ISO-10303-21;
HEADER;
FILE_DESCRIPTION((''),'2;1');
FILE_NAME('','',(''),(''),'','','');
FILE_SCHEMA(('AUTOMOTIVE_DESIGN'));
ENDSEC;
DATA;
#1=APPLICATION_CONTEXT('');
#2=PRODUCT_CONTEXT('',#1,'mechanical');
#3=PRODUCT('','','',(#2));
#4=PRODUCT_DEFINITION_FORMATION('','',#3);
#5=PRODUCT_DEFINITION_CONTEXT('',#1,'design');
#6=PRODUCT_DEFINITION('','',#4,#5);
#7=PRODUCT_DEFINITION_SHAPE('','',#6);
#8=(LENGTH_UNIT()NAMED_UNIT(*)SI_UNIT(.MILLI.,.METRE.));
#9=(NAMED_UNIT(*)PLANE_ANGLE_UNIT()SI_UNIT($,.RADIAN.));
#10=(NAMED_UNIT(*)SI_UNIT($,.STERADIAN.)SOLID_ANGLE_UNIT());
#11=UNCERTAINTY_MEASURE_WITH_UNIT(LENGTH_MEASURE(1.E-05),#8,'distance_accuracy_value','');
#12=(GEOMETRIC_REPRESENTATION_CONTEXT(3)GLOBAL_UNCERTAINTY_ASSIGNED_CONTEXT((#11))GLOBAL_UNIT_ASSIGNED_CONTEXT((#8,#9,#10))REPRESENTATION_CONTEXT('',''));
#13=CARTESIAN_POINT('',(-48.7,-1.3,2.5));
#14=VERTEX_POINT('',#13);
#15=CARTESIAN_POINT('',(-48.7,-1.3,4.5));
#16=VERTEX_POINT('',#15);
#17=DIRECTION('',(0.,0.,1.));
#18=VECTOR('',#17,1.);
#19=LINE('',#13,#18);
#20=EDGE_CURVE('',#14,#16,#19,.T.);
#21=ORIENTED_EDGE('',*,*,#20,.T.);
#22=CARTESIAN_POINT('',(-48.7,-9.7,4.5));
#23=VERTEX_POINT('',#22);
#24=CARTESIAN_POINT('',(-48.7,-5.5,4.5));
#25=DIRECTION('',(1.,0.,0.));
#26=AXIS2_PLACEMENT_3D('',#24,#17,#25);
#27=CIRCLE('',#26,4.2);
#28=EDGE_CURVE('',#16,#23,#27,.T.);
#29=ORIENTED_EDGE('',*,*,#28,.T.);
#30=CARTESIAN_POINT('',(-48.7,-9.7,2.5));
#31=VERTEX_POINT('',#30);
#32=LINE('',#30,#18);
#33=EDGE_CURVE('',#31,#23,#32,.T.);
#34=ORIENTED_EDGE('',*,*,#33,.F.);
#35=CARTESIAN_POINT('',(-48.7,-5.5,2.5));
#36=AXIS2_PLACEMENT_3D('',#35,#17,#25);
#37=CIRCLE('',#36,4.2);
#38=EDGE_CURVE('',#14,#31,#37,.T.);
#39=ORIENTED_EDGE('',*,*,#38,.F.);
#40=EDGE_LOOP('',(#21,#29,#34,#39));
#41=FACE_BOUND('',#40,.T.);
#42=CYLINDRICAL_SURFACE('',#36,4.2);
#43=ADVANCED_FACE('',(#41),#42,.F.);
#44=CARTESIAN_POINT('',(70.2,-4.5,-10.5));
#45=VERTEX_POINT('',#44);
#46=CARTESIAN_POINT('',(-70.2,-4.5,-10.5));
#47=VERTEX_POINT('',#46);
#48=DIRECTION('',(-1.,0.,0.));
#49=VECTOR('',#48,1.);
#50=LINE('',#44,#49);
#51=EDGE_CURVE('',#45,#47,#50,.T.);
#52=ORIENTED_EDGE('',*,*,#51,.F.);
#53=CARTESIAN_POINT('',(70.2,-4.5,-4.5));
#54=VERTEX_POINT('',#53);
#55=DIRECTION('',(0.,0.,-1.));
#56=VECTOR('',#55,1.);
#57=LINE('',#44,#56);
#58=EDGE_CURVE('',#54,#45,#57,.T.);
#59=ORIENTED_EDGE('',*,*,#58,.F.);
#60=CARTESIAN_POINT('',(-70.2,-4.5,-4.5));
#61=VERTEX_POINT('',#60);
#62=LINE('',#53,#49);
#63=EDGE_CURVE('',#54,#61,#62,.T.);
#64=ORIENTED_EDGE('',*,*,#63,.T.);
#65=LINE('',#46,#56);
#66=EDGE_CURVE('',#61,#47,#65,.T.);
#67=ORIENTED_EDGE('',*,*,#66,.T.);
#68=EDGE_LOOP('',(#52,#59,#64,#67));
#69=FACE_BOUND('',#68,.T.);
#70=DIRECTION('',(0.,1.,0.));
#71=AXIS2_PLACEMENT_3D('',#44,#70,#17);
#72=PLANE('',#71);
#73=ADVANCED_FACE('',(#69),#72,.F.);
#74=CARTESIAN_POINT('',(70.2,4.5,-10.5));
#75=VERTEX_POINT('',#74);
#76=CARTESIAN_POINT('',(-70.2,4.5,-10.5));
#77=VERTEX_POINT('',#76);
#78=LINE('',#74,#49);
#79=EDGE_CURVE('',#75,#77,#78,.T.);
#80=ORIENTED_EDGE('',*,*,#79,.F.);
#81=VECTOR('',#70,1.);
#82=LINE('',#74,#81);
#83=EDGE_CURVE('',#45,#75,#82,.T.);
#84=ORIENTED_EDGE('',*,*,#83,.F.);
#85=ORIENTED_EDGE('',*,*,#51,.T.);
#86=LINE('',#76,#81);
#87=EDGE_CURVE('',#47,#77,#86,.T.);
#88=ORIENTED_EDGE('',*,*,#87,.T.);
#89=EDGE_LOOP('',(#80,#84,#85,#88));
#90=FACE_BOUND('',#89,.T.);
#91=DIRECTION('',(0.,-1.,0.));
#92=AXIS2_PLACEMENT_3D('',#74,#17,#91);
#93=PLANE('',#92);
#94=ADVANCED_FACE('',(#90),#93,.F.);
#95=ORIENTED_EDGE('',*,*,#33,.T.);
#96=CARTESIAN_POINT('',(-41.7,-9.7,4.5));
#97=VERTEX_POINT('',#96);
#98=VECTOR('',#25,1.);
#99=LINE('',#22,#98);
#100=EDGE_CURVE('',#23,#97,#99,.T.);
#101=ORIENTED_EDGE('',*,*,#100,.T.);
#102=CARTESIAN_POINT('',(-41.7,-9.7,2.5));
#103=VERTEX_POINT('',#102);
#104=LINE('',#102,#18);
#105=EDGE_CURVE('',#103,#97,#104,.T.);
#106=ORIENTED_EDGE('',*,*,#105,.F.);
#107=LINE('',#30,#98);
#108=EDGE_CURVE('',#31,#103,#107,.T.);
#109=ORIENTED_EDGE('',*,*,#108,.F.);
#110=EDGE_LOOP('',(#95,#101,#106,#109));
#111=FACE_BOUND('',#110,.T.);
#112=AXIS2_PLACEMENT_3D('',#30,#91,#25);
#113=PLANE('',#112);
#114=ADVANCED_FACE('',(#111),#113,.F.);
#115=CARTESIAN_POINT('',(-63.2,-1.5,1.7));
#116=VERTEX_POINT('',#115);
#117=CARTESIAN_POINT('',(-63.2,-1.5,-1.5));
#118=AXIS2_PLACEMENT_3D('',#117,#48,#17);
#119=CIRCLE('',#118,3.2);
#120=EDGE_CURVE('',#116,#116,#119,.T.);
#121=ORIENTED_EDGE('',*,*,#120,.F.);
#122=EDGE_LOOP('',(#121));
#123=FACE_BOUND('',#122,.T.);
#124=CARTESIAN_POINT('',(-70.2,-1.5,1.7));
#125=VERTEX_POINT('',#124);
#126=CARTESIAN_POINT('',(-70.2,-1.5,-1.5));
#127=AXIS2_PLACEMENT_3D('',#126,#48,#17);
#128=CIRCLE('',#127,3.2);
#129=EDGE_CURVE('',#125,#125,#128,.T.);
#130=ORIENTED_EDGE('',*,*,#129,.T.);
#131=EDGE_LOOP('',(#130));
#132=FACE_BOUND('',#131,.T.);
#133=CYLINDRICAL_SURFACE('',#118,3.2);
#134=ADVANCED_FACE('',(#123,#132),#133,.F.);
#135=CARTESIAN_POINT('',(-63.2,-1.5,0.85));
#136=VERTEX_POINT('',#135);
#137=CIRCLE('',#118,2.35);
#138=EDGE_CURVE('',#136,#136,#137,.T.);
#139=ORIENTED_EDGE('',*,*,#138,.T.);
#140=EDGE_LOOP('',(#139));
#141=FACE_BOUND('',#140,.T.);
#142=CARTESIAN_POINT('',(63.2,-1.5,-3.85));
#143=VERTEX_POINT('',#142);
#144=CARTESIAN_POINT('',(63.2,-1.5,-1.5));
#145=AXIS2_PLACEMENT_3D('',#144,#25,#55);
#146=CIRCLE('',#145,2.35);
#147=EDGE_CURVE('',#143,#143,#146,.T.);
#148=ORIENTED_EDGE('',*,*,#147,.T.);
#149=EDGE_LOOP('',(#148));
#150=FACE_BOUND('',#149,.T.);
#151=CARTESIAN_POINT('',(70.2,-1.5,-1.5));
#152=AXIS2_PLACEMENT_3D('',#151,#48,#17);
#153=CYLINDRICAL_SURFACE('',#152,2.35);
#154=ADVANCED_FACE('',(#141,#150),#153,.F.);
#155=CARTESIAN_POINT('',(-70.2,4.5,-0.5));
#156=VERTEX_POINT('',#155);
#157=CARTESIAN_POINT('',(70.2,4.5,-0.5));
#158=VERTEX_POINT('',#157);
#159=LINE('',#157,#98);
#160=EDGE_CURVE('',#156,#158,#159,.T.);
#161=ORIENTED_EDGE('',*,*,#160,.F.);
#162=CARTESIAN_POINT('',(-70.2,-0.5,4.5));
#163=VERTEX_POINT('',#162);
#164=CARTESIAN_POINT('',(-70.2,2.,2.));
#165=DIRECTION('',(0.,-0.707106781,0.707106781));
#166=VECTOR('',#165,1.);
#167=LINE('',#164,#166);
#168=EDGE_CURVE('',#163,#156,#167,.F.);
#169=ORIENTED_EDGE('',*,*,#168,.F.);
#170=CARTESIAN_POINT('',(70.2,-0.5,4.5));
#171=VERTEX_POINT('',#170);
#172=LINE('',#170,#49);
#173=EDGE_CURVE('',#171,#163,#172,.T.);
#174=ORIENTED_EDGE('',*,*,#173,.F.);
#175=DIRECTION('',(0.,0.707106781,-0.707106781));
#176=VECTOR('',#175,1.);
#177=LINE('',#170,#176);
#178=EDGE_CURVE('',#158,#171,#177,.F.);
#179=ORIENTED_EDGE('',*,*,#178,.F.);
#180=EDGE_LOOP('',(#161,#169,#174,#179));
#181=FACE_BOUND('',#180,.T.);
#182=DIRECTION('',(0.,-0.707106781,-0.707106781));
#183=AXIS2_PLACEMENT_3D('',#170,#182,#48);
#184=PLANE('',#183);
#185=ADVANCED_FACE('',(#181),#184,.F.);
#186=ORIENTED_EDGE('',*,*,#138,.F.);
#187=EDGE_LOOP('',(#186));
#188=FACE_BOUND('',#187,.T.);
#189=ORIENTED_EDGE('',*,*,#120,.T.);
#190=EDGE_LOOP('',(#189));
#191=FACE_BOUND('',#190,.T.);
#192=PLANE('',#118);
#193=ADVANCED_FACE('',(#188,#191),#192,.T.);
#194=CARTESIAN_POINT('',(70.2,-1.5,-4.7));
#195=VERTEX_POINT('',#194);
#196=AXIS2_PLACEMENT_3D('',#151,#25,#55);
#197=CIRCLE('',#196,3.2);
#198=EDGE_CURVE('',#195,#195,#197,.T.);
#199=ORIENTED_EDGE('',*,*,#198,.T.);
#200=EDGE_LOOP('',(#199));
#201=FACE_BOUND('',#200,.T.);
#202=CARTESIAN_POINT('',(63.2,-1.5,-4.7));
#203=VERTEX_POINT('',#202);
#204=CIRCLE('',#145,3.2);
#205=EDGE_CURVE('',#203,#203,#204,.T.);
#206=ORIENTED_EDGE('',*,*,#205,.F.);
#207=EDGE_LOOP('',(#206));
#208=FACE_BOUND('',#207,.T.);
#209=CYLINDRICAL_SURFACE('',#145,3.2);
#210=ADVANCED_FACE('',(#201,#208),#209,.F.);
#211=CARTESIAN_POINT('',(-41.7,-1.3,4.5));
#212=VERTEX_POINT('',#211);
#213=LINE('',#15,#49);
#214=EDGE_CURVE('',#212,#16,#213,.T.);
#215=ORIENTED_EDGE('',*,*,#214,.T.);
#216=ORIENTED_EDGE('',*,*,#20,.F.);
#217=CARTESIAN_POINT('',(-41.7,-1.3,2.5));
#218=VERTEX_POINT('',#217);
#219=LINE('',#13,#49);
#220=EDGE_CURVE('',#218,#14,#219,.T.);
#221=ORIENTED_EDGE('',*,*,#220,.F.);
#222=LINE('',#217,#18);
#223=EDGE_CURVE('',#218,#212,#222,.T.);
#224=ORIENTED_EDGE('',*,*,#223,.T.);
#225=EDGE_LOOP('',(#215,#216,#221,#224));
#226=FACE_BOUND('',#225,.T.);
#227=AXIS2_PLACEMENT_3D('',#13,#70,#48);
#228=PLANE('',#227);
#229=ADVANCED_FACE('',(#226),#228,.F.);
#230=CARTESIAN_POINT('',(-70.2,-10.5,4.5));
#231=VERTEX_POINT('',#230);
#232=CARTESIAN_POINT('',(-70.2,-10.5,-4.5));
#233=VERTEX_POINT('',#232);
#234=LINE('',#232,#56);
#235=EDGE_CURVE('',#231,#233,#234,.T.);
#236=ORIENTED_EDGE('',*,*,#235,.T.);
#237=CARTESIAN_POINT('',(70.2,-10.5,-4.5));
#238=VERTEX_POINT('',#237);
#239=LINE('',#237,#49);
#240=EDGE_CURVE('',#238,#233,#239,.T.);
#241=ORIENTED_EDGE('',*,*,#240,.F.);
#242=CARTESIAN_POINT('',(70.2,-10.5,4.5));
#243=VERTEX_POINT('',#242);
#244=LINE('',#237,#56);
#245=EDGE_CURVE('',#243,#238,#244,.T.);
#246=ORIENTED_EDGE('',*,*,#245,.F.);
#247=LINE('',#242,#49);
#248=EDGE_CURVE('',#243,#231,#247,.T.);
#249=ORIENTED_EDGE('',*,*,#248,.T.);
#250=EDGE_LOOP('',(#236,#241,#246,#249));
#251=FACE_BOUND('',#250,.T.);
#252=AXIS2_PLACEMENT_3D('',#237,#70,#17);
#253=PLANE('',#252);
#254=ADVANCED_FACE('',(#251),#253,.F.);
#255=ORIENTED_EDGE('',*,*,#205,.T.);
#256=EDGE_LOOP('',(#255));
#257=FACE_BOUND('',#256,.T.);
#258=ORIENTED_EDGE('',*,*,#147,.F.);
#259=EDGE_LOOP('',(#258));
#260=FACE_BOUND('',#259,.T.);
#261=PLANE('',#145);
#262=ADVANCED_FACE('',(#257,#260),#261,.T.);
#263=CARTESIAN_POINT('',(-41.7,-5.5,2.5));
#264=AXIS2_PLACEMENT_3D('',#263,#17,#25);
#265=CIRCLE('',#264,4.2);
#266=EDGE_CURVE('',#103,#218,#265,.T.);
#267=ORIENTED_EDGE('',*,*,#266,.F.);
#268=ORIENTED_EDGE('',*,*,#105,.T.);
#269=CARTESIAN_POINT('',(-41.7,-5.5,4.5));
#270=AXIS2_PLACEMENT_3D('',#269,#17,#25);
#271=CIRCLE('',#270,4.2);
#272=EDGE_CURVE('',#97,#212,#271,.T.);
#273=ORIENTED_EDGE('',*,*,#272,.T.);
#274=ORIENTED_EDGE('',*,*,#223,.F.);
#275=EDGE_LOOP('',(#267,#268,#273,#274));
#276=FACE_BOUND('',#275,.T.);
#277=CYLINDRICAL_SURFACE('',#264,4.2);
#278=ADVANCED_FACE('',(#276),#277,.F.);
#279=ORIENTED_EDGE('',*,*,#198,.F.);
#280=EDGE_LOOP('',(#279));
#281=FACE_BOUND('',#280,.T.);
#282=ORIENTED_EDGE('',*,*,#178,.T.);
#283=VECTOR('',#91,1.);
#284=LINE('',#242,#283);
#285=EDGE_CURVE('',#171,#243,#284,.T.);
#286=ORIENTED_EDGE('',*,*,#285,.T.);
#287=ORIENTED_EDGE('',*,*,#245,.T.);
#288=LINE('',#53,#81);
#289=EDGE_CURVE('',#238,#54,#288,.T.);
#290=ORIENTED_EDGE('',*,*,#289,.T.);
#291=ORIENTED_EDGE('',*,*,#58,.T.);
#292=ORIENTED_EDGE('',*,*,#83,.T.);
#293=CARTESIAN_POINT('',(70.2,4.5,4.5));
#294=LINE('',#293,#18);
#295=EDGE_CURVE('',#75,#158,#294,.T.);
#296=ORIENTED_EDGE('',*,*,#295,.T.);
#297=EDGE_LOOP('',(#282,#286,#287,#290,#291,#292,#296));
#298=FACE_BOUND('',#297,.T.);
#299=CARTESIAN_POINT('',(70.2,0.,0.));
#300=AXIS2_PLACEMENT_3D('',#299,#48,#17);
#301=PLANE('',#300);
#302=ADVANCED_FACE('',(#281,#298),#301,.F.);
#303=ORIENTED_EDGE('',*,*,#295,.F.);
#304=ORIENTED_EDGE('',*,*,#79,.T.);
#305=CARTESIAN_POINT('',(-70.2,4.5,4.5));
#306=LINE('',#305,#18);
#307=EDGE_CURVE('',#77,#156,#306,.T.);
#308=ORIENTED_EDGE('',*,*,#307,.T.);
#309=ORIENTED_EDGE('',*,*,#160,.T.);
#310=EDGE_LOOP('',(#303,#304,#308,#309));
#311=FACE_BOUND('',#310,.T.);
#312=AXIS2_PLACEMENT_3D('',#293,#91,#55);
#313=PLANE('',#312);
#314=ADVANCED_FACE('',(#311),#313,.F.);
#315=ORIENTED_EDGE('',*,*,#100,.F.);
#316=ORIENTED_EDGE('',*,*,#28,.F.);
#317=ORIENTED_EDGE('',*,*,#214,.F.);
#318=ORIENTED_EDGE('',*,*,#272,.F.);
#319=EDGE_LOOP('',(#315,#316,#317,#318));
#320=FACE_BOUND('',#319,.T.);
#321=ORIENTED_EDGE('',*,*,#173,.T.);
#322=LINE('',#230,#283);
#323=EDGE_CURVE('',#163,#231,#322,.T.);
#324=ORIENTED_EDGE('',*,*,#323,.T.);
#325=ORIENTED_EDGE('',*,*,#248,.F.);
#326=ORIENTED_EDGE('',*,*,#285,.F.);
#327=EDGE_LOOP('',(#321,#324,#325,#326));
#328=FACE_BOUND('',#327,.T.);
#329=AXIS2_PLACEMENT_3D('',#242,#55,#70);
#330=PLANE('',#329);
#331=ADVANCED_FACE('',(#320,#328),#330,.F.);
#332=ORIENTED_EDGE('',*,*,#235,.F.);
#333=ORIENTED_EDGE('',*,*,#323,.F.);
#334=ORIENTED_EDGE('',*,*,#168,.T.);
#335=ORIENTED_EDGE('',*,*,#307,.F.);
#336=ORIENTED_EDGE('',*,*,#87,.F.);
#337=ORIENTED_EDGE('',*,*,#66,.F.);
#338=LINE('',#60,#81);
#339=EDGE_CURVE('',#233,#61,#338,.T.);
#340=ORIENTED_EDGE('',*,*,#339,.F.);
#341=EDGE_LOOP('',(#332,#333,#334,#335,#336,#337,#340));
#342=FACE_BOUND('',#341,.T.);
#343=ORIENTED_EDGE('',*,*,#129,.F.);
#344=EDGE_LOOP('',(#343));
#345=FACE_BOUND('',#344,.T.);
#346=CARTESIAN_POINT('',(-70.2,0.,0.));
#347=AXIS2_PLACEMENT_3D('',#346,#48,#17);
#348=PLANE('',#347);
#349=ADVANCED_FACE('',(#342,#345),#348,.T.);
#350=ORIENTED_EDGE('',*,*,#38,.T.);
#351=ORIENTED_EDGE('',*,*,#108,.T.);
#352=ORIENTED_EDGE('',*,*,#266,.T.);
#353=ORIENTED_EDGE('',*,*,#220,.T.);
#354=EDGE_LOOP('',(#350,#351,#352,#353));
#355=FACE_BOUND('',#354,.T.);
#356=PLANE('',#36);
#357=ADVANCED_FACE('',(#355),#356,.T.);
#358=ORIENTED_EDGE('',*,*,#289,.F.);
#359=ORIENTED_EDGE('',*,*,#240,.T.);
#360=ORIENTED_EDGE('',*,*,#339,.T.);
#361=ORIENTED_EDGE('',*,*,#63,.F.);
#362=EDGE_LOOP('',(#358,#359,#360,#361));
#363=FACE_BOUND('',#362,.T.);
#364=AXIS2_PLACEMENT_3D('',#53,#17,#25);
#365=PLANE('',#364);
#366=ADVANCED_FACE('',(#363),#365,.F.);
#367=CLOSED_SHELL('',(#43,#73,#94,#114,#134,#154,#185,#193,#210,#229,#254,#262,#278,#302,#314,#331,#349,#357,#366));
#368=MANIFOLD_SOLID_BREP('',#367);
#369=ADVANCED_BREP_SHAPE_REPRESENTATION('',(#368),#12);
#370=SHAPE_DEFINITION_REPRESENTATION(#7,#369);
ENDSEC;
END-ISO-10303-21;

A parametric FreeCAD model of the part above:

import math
import FreeCAD as App
import Part
import Sketcher

V = App.Vector
Q = App.Units.Quantity


def edges_at(feature, points):
    """Names of the edges that pass closest to the given points."""
    edges = feature.Shape.Edges
    near = lambda p: min(range(len(edges)), key=lambda i: edges[i].distToShape(Part.Vertex(*p))[0])
    return sorted({f"Edge{near(p) + 1}" for p in points})

doc = App.newDocument("Part")
body = doc.addObject("PartDesign::Body", "Body")

sketch1 = body.newObject("Sketcher::SketchObject", "Sketch")
sketch1.AttachmentSupport = (doc.getObject("YZ_Plane"), [""])
sketch1.MapMode = "FlatFace"
sketch1.addGeometry(Part.LineSegment(V(4.5, 4.5, 0), V(-10.5, 4.5, 0)), False)
sketch1.addGeometry(Part.LineSegment(V(-10.5, 4.5, 0), V(-10.5, -4.5, 0)), False)
sketch1.addGeometry(Part.LineSegment(V(-10.5, -4.5, 0), V(-4.5, -4.5, 0)), False)
sketch1.addGeometry(Part.LineSegment(V(-4.5, -4.5, 0), V(-4.5, -10.5, 0)), False)
sketch1.addGeometry(Part.LineSegment(V(-4.5, -10.5, 0), V(4.5, -10.5, 0)), False)
sketch1.addGeometry(Part.LineSegment(V(4.5, -10.5, 0), V(4.5, 4.5, 0)), False)
sketch1.addGeometry(Part.Circle(V(-1.5, -1.5, 0), V(0, 0, 1), 2.4), False)
sketch1.addConstraint(Sketcher.Constraint("Coincident", 0, 2, 1, 1))
sketch1.addConstraint(Sketcher.Constraint("Coincident", 1, 2, 2, 1))
sketch1.addConstraint(Sketcher.Constraint("Coincident", 2, 2, 3, 1))
sketch1.addConstraint(Sketcher.Constraint("Coincident", 3, 2, 4, 1))
sketch1.addConstraint(Sketcher.Constraint("Coincident", 4, 2, 5, 1))
sketch1.addConstraint(Sketcher.Constraint("Coincident", 5, 2, 0, 1))
sketch1.addConstraint(Sketcher.Constraint("Horizontal", 0))
sketch1.addConstraint(Sketcher.Constraint("Vertical", 1))
sketch1.addConstraint(Sketcher.Constraint("Horizontal", 2))
sketch1.addConstraint(Sketcher.Constraint("Vertical", 3))
sketch1.addConstraint(Sketcher.Constraint("Horizontal", 4))
sketch1.addConstraint(Sketcher.Constraint("Vertical", 5))
sketch1.addConstraint(Sketcher.Constraint("Symmetric", 2, 2, 5, 2, -1, 1))
sketch1.addConstraint(Sketcher.Constraint("Equal", 4, 1))
sketch1.addConstraint(Sketcher.Constraint("Equal", 2, 3))
sketch1.addConstraint(Sketcher.Constraint("Diameter", 6, Q("4.7 mm")))
sketch1.addConstraint(Sketcher.Constraint("DistanceX", 0, 2, 0, 1, Q("15 mm")))
sketch1.addConstraint(Sketcher.Constraint("DistanceX", 2, 1, 2, 2, Q("6 mm")))
sketch1.addConstraint(Sketcher.Constraint("DistanceX", 0, 2, 6, 3, Q("9 mm")))
sketch1.addConstraint(Sketcher.Constraint("DistanceY", 6, 3, 0, 2, Q("6 mm")))
pad1 = body.newObject("PartDesign::Pad", "Pad")
pad1.Profile = sketch1
pad1.Length = 140.4
pad1.Midplane = True
doc.recompute()

chamfer = body.newObject("PartDesign::Chamfer", "Chamfer")
chamfer.Base = (pad1, edges_at(pad1, [(0, 4.5, 4.5)]))
chamfer.Size = 5

sketch2 = body.newObject("Sketcher::SketchObject", "Sketch001")
sketch2.AttachmentSupport = (doc.getObject("YZ_Plane"), [""])
sketch2.MapMode = "FlatFace"
sketch2.AttachmentOffset = App.Placement(V(0, 0, -70.2), App.Rotation())
sketch2.addGeometry(Part.Circle(V(-1.5, -1.5, 0), V(0, 0, 1), 3.2), False)
sketch2.addGeometry(Part.Circle(V(-1.5, -1.5, 0), V(0, 0, 1), 2.4), False)
sketch2.addConstraint(Sketcher.Constraint("Coincident", 1, 3, 0, 3))
sketch2.addConstraint(Sketcher.Constraint("Diameter", 0, Q("6.4 mm")))
sketch2.addConstraint(Sketcher.Constraint("Diameter", 1, Q("4.7 mm")))
sketch2.addConstraint(Sketcher.Constraint("DistanceX", 0, 3, -1, 1, Q("1.5 mm")))
sketch2.addConstraint(Sketcher.Constraint("DistanceY", 0, 3, -1, 1, Q("1.5 mm")))
pocket1 = body.newObject("PartDesign::Pocket", "Pocket")
pocket1.Profile = sketch2
pocket1.Length = 7
pocket1.Reversed = True

sketch3 = body.newObject("Sketcher::SketchObject", "Sketch002")
sketch3.AttachmentSupport = (doc.getObject("YZ_Plane"), [""])
sketch3.MapMode = "FlatFace"
sketch3.AttachmentOffset = App.Placement(V(0, 0, 63.2), App.Rotation())
sketch3.addGeometry(Part.Circle(V(-1.5, -1.5, 0), V(0, 0, 1), 3.2), False)
sketch3.addGeometry(Part.Circle(V(-1.5, -1.5, 0), V(0, 0, 1), 2.4), False)
sketch3.addConstraint(Sketcher.Constraint("Coincident", 1, 3, 0, 3))
sketch3.addConstraint(Sketcher.Constraint("Diameter", 0, Q("6.4 mm")))
sketch3.addConstraint(Sketcher.Constraint("Diameter", 1, Q("4.7 mm")))
sketch3.addConstraint(Sketcher.Constraint("DistanceX", 0, 3, -1, 1, Q("1.5 mm")))
sketch3.addConstraint(Sketcher.Constraint("DistanceY", 0, 3, -1, 1, Q("1.5 mm")))
pocket2 = body.newObject("PartDesign::Pocket", "Pocket001")
pocket2.Profile = sketch3
pocket2.Length = 7
pocket2.Reversed = True

sketch4 = body.newObject("Sketcher::SketchObject", "Sketch003")
sketch4.AttachmentSupport = (doc.getObject("XY_Plane"), [""])
sketch4.MapMode = "FlatFace"
sketch4.AttachmentOffset = App.Placement(V(0, 0, 4.5), App.Rotation())
sketch4.addGeometry(Part.LineSegment(V(-41.7, -1.3, 0), V(-48.7, -1.3, 0)), False)
sketch4.addGeometry(Part.ArcOfCircle(Part.Circle(V(-48.7, -5.5, 0), V(0, 0, 1), 4.2), math.radians(90), math.radians(270)), False)
sketch4.addGeometry(Part.LineSegment(V(-48.7, -9.7, 0), V(-41.7, -9.7, 0)), False)
sketch4.addGeometry(Part.ArcOfCircle(Part.Circle(V(-41.7, -5.5, 0), V(0, 0, 1), 4.2), math.radians(-90), math.radians(90)), False)
sketch4.addConstraint(Sketcher.Constraint("Tangent", 0, 2, 1, 1))
sketch4.addConstraint(Sketcher.Constraint("Tangent", 1, 2, 2, 1))
sketch4.addConstraint(Sketcher.Constraint("Tangent", 2, 2, 3, 1))
sketch4.addConstraint(Sketcher.Constraint("Tangent", 3, 2, 0, 1))
sketch4.addConstraint(Sketcher.Constraint("Horizontal", 0))
sketch4.addConstraint(Sketcher.Constraint("Horizontal", 2))
sketch4.addConstraint(Sketcher.Constraint("Radius", 1, Q("4.2 mm")))
sketch4.addConstraint(Sketcher.Constraint("DistanceX", 0, 2, 0, 1, Q("7 mm")))
sketch4.addConstraint(Sketcher.Constraint("DistanceX", 1, 3, -1, 1, Q("48.7 mm")))
sketch4.addConstraint(Sketcher.Constraint("DistanceY", 1, 3, -1, 1, Q("5.5 mm")))
pocket3 = body.newObject("PartDesign::Pocket", "Pocket002")
pocket3.Profile = sketch4
pocket3.Length = 2

doc.recompute()
